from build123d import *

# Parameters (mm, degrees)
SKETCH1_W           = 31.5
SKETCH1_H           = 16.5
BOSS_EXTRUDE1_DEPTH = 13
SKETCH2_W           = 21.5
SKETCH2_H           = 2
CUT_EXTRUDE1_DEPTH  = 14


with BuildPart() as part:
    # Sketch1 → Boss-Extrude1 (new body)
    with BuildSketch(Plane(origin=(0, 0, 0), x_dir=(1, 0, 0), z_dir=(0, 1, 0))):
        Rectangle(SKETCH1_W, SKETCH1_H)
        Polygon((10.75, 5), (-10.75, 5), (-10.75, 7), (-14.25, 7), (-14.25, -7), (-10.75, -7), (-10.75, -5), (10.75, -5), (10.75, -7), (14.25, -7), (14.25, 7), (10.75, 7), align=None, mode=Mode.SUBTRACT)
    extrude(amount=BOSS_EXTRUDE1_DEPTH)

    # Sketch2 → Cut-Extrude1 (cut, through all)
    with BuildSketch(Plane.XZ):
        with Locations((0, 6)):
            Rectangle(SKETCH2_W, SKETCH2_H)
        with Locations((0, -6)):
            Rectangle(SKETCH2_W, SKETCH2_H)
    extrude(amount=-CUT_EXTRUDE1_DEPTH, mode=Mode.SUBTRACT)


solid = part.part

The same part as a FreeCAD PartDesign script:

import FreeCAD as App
import Part
import Sketcher

V = App.Vector
Q = App.Units.Quantity

doc = App.newDocument("Part")
body = doc.addObject("PartDesign::Body", "Body")

sketch1 = body.newObject("Sketcher::SketchObject", "Sketch")
sketch1.AttachmentSupport = (doc.getObject("XZ_Plane"), [""])
sketch1.MapMode = "FlatFace"
sketch1.addGeometry([
    Part.LineSegment(V(-15.75, -8.25, 0), V(-15.75, 8.25, 0)),
    Part.LineSegment(V(-15.75, 8.25, 0), V(15.75, 8.25, 0)),
    Part.LineSegment(V(15.75, 8.25, 0), V(15.75, -8.25, 0)),
    Part.LineSegment(V(15.75, -8.25, 0), V(-15.75, -8.25, 0)),
    Part.LineSegment(V(-10.75, -5, 0), V(10.75, -5, 0)),
    Part.LineSegment(V(10.75, -5, 0), V(10.75, -7, 0)),
    Part.LineSegment(V(10.75, -7, 0), V(14.25, -7, 0)),
    Part.LineSegment(V(14.25, -7, 0), V(14.25, 7, 0)),
    Part.LineSegment(V(14.25, 7, 0), V(10.75, 7, 0)),
    Part.LineSegment(V(10.75, 7, 0), V(10.75, 5, 0)),
    Part.LineSegment(V(10.75, 5, 0), V(-10.75, 5, 0)),
    Part.LineSegment(V(-10.75, 5, 0), V(-10.75, 7, 0)),
    Part.LineSegment(V(-10.75, 7, 0), V(-14.25, 7, 0)),
    Part.LineSegment(V(-14.25, 7, 0), V(-14.25, -7, 0)),
    Part.LineSegment(V(-14.25, -7, 0), V(-10.75, -7, 0)),
    Part.LineSegment(V(-10.75, -7, 0), V(-10.75, -5, 0)),
], False)
sketch1.addConstraint([
    Sketcher.Constraint("Coincident", 0, 2, 1, 1),
    Sketcher.Constraint("Coincident", 1, 2, 2, 1),
    Sketcher.Constraint("Coincident", 2, 2, 3, 1),
    Sketcher.Constraint("Coincident", 3, 2, 0, 1),
    Sketcher.Constraint("Coincident", 4, 2, 5, 1),
    Sketcher.Constraint("Coincident", 5, 2, 6, 1),
    Sketcher.Constraint("Coincident", 6, 2, 7, 1),
    Sketcher.Constraint("Coincident", 7, 2, 8, 1),
    Sketcher.Constraint("Coincident", 8, 2, 9, 1),
    Sketcher.Constraint("Coincident", 9, 2, 10, 1),
    Sketcher.Constraint("Coincident", 10, 2, 11, 1),
    Sketcher.Constraint("Coincident", 11, 2, 12, 1),
    Sketcher.Constraint("Coincident", 12, 2, 13, 1),
    Sketcher.Constraint("Coincident", 13, 2, 14, 1),
    Sketcher.Constraint("Coincident", 14, 2, 15, 1),
    Sketcher.Constraint("Coincident", 15, 2, 4, 1),
    Sketcher.Constraint("Vertical", 0),
    Sketcher.Constraint("Horizontal", 1),
    Sketcher.Constraint("Vertical", 2),
    Sketcher.Constraint("Horizontal", 3),
    Sketcher.Constraint("Horizontal", 4),
    Sketcher.Constraint("Vertical", 5),
    Sketcher.Constraint("Horizontal", 6),
    Sketcher.Constraint("Vertical", 7),
    Sketcher.Constraint("Horizontal", 8),
    Sketcher.Constraint("Vertical", 9),
    Sketcher.Constraint("Horizontal", 10),
    Sketcher.Constraint("Vertical", 11),
    Sketcher.Constraint("Horizontal", 12),
    Sketcher.Constraint("Vertical", 13),
    Sketcher.Constraint("Horizontal", 14),
    Sketcher.Constraint("Vertical", 15),
    Sketcher.Constraint("Symmetric", 0, 2, 2, 2, -1, 1),
    Sketcher.Constraint("Symmetric", 4, 2, 10, 2, -1, 1),
    Sketcher.Constraint("Symmetric", 6, 2, 12, 2, -1, 1),
    Sketcher.Constraint("Symmetric", 8, 2, 14, 2, -1, 1),
    Sketcher.Constraint("Symmetric", 8, 2, 11, 2, -2),
    Sketcher.Constraint("DistanceY", 5, 2, 5, 1, Q("2 mm")),
    Sketcher.Constraint("DistanceY", 7, 1, 7, 2, Q("14 mm")),
    Sketcher.Constraint("DistanceX", 1, 1, 1, 2, Q("31.5 mm")),
    Sketcher.Constraint("DistanceX", 4, 1, 4, 2, Q("21.5 mm")),
    Sketcher.Constraint("DistanceX", 6, 1, 6, 2, Q("3.5 mm")),
    Sketcher.Constraint("DistanceY", 0, 1, 0, 2, Q("16.5 mm")),
])
pad1 = body.newObject("PartDesign::Pad", "Pad")
pad1.Profile = sketch1
pad1.Length = 13
pad1.Reversed = True

sketch2 = body.newObject("Sketcher::SketchObject", "Sketch001")
sketch2.AttachmentSupport = (doc.getObject("XZ_Plane"), [""])
sketch2.MapMode = "FlatFace"
sketch2.addGeometry([
    Part.LineSegment(V(-10.75, 7, 0), V(-10.75, 5, 0)),
    Part.LineSegment(V(-10.75, 5, 0), V(10.75, 5, 0)),
    Part.LineSegment(V(10.75, 5, 0), V(10.75, 7, 0)),
    Part.LineSegment(V(10.75, 7, 0), V(-10.75, 7, 0)),
    Part.LineSegment(V(-10.75, -5, 0), V(-10.75, -7, 0)),
    Part.LineSegment(V(-10.75, -7, 0), V(10.75, -7, 0)),
    Part.LineSegment(V(10.75, -7, 0), V(10.75, -5, 0)),
    Part.LineSegment(V(10.75, -5, 0), V(-10.75, -5, 0)),
], False)
sketch2.addConstraint([
    Sketcher.Constraint("Coincident", 0, 2, 1, 1),
    Sketcher.Constraint("Coincident", 1, 2, 2, 1),
    Sketcher.Constraint("Coincident", 2, 2, 3, 1),
    Sketcher.Constraint("Coincident", 3, 2, 0, 1),
    Sketcher.Constraint("Coincident", 4, 2, 5, 1),
    Sketcher.Constraint("Coincident", 5, 2, 6, 1),
    Sketcher.Constraint("Coincident", 6, 2, 7, 1),
    Sketcher.Constraint("Coincident", 7, 2, 4, 1),
    Sketcher.Constraint("Vertical", 0),
    Sketcher.Constraint("Horizontal", 1),
    Sketcher.Constraint("Vertical", 2),
    Sketcher.Constraint("Horizontal", 3),
    Sketcher.Constraint("Vertical", 4),
    Sketcher.Constraint("Horizontal", 5),
    Sketcher.Constraint("Vertical", 6),
    Sketcher.Constraint("Horizontal", 7),
    Sketcher.Constraint("Symmetric", 2, 2, 4, 2, -1, 1),
    Sketcher.Constraint("Symmetric", 0, 2, 6, 2, -1, 1),
    Sketcher.Constraint("Vertical", 3, 2, 4, 2),
    Sketcher.Constraint("DistanceY", 0, 2, 0, 1, Q("2 mm")),
    Sketcher.Constraint("DistanceX", 1, 1, 1, 2, Q("21.5 mm")),
    Sketcher.Constraint("DistanceY", -1, 1, 0, 2, Q("5 mm")),
])
pocket1 = body.newObject("PartDesign::Pocket", "Pocket")
pocket1.Profile = sketch2
pocket1.Type = "ThroughAll"

doc.recompute()
